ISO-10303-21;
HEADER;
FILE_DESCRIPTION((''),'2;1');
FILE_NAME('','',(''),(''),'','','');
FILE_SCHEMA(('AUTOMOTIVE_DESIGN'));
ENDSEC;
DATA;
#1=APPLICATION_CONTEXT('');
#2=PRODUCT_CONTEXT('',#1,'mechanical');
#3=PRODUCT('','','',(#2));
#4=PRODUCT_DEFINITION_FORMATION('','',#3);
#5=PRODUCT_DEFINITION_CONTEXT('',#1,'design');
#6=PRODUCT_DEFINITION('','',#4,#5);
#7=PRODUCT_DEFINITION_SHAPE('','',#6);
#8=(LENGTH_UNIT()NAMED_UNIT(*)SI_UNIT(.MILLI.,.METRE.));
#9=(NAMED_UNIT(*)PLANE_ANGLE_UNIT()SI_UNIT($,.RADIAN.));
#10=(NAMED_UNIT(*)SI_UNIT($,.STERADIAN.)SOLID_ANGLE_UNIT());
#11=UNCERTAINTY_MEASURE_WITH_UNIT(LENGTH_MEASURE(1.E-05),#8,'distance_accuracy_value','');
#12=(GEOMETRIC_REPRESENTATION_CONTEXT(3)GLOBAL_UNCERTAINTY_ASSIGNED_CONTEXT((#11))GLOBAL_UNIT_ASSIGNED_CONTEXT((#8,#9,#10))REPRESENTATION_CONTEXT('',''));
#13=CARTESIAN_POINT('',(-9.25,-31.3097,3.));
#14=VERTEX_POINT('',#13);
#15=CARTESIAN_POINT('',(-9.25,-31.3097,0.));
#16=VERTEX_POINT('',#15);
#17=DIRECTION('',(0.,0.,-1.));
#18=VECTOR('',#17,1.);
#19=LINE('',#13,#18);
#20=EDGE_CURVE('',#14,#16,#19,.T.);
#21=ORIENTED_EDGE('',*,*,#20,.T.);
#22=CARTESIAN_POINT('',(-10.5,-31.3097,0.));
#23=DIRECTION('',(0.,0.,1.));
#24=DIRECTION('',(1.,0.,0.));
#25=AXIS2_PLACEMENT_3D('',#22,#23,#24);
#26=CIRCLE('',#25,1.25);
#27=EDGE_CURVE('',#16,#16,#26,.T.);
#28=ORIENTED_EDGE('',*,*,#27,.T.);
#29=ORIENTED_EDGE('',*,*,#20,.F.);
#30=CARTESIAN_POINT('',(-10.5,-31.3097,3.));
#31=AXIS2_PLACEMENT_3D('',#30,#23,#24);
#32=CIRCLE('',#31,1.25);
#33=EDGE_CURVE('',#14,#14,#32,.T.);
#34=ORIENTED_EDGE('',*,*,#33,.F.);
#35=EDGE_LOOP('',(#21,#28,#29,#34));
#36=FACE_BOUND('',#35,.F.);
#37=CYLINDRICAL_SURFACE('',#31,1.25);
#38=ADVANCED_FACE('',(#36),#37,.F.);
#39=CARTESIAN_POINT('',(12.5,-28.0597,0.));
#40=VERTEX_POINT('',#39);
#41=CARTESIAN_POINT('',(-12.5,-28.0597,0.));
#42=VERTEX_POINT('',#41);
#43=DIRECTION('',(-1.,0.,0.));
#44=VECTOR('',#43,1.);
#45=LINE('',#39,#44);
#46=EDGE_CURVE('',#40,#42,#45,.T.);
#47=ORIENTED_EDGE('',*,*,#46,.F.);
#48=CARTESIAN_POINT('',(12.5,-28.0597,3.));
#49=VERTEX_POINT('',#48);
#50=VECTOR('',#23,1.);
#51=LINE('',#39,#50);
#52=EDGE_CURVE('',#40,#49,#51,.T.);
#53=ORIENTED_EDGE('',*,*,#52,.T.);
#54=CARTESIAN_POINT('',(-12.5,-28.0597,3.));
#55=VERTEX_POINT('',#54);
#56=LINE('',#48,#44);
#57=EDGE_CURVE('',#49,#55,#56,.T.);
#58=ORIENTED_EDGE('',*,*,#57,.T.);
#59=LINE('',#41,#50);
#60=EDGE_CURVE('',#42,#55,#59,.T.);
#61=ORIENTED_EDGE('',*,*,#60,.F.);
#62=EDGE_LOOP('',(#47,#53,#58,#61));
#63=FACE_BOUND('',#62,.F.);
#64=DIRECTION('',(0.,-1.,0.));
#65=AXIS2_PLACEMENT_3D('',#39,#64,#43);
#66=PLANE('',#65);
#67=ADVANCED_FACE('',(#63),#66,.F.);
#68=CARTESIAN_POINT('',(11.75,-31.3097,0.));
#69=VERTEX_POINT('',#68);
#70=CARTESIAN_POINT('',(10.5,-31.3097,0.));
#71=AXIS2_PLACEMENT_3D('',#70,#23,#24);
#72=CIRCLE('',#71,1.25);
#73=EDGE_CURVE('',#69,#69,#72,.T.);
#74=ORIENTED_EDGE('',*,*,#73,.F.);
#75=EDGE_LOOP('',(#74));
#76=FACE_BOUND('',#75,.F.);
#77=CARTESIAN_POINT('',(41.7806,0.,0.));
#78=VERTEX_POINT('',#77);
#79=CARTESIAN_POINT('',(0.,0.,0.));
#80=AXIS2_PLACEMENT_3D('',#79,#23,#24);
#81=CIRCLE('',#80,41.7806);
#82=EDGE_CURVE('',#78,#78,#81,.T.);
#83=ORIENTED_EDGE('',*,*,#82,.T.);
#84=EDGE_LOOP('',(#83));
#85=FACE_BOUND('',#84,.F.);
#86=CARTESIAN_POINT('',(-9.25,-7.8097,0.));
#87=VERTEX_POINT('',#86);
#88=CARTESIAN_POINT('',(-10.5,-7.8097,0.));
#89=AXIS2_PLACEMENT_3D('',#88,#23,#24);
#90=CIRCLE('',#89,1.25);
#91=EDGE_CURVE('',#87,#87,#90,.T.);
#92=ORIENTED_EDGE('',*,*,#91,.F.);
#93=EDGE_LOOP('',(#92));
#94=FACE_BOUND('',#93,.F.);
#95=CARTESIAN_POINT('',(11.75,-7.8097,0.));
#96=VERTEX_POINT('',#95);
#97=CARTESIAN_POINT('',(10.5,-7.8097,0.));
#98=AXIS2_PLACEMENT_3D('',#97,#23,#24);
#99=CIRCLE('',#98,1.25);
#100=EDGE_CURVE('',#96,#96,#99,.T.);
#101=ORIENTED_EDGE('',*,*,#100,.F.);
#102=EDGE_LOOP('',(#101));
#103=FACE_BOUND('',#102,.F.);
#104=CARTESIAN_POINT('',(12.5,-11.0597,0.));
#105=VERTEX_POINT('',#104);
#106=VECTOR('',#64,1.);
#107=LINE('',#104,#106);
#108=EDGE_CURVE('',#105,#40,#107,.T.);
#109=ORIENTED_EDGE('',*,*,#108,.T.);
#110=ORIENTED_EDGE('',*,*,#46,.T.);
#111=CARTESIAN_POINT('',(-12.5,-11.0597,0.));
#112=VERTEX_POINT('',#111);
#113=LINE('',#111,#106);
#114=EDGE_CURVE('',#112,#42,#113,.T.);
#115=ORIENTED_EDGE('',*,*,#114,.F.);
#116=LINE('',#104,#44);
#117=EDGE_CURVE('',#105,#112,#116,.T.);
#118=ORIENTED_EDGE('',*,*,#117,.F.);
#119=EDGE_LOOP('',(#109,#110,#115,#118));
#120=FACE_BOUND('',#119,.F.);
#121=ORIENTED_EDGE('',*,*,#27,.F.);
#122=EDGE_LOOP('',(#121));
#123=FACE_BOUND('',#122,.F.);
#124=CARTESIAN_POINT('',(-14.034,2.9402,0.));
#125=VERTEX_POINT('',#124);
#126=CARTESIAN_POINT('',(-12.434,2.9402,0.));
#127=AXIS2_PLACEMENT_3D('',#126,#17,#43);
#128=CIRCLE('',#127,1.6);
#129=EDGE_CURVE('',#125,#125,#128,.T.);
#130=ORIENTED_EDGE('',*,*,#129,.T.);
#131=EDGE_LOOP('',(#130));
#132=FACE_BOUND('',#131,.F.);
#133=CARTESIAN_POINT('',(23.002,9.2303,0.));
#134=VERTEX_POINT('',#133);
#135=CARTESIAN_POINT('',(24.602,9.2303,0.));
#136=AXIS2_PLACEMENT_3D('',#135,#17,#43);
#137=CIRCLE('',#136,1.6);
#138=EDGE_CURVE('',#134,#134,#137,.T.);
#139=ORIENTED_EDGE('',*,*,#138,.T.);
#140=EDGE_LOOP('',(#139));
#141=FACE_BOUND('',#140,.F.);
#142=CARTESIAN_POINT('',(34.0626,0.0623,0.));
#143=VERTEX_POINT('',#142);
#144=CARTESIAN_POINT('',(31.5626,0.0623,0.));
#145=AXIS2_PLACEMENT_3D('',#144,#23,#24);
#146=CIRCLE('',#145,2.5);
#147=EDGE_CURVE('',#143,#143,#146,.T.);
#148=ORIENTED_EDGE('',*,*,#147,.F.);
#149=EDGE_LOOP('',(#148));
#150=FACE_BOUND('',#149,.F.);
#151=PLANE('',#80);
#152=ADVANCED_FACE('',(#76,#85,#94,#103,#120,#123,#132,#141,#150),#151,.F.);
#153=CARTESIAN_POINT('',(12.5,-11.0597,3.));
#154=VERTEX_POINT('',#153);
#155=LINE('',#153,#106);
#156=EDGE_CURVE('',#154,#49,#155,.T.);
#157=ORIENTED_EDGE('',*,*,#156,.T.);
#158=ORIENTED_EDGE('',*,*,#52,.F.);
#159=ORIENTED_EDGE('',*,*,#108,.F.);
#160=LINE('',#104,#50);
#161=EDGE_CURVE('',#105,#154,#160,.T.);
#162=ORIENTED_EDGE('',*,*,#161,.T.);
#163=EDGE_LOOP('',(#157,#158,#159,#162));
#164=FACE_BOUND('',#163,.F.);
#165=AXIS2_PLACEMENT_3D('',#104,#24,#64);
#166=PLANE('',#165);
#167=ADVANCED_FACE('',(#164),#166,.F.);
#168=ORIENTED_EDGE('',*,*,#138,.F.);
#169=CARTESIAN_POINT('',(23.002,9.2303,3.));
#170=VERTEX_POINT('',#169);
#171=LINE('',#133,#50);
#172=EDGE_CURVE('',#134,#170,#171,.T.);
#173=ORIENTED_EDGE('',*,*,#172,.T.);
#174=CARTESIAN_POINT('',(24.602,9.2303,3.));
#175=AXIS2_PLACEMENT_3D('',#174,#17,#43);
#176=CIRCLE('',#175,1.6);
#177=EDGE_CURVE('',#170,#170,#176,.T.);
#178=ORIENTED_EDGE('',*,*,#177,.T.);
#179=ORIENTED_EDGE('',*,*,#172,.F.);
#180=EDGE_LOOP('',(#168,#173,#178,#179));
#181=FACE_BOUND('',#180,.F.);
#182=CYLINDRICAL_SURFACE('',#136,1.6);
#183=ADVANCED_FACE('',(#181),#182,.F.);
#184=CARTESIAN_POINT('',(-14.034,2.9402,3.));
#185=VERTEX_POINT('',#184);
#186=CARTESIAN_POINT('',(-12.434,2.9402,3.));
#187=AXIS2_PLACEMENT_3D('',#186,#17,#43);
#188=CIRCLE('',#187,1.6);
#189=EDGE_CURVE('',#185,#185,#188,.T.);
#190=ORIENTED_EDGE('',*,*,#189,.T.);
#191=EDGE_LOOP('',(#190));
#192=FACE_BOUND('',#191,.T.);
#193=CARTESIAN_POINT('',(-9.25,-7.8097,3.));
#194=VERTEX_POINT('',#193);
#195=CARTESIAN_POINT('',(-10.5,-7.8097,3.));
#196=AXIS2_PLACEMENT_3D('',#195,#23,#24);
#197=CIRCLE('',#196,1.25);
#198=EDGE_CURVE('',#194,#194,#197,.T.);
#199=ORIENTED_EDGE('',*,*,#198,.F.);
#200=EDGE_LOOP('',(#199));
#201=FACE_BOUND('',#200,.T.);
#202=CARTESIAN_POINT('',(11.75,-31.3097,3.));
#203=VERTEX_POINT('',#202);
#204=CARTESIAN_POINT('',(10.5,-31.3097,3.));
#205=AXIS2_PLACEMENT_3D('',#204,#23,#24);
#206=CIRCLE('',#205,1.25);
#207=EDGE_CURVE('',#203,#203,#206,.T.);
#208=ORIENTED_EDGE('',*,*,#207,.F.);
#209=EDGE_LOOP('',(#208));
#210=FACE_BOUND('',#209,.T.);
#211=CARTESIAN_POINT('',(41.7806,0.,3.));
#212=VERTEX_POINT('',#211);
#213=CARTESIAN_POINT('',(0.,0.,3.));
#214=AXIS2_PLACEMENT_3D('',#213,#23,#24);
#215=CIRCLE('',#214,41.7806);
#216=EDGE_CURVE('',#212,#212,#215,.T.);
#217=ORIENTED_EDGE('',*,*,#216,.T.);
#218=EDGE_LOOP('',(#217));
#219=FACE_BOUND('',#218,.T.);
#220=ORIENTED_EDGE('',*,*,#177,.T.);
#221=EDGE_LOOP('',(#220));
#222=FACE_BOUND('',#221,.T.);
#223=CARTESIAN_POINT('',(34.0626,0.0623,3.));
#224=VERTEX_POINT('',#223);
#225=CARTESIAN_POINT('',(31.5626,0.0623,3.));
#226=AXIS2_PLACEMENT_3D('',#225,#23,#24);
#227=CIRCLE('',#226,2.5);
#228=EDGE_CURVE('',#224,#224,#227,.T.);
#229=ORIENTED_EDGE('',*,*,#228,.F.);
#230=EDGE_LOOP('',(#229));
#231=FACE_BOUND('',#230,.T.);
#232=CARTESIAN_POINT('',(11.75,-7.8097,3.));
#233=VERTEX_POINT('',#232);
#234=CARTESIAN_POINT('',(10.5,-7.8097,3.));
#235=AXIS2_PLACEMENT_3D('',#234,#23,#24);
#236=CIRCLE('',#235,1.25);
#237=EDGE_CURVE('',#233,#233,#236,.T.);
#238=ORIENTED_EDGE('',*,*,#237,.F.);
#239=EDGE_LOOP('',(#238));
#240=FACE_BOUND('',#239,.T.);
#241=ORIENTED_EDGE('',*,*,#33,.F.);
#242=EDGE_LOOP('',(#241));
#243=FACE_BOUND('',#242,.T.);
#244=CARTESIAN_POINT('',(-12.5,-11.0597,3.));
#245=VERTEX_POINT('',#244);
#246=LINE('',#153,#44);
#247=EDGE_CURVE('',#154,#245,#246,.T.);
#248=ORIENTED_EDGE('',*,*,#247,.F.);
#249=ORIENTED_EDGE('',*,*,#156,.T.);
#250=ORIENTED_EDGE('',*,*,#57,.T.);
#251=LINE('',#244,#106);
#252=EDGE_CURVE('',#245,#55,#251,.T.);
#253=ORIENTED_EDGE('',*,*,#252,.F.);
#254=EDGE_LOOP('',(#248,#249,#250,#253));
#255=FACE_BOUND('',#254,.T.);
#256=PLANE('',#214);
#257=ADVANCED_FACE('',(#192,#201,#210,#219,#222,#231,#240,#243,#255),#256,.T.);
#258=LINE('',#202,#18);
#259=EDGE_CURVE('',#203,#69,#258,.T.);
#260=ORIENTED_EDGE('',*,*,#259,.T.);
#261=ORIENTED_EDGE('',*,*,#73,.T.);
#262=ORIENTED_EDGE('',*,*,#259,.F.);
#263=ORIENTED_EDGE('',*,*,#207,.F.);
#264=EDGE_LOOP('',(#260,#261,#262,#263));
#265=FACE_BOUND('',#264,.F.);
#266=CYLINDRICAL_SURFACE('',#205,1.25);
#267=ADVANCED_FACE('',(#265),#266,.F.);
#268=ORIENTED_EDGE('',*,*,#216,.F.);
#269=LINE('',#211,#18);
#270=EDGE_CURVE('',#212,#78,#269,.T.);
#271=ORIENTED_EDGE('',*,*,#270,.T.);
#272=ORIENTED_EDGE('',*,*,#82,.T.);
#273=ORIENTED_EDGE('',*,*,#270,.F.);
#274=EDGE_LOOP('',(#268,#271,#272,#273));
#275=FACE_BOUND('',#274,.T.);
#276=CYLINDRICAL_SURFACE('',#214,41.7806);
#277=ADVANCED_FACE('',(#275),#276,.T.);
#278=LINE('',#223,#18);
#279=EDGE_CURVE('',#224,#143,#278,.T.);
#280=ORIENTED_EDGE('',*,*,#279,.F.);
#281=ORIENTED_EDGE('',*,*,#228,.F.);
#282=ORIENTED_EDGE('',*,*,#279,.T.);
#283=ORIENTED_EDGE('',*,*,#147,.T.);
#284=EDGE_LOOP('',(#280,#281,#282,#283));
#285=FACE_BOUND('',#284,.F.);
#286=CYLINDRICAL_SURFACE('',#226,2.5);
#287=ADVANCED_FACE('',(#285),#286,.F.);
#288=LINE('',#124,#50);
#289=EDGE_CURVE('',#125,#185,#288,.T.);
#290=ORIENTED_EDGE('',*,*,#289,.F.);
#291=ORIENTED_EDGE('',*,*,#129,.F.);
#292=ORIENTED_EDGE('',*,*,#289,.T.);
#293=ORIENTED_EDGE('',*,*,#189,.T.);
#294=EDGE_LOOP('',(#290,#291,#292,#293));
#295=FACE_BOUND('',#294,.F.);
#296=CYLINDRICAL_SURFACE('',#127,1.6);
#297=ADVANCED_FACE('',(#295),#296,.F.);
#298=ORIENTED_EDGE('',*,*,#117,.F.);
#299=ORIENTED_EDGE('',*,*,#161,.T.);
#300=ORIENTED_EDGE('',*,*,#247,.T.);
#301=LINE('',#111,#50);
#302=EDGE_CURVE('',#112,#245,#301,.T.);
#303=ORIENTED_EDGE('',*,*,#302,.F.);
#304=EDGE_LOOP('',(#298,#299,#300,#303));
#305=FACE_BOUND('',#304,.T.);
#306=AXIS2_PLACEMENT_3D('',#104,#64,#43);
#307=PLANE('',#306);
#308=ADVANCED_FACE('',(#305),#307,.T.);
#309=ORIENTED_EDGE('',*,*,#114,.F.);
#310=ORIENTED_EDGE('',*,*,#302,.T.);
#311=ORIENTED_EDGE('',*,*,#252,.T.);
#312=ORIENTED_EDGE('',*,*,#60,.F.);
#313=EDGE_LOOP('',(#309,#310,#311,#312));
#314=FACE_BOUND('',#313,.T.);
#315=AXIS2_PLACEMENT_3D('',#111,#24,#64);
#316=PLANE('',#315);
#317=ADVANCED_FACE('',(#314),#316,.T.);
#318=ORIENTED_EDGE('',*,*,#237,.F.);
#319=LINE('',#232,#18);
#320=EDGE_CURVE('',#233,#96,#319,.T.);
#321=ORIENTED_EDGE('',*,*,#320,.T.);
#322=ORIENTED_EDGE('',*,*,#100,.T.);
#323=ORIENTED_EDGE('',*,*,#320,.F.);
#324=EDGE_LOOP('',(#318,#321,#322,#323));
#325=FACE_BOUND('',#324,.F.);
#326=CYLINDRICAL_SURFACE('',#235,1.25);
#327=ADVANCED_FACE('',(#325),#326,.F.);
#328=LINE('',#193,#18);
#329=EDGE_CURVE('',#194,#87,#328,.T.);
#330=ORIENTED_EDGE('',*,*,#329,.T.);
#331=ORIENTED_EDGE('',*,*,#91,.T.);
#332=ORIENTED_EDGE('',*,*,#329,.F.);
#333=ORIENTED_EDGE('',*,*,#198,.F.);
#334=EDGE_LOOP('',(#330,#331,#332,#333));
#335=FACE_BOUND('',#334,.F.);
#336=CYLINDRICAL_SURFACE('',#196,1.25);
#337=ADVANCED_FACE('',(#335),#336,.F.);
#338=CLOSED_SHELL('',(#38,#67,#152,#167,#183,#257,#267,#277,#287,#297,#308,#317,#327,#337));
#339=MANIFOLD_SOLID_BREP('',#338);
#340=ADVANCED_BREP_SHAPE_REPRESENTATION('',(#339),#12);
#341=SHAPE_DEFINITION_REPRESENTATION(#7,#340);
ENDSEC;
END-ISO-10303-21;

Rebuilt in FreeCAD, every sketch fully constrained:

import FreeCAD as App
import Part
import Sketcher
from FreeCAD import Vector


def add_polygon(sketch, points):
    """Adds a closed chain of lines whose ends are joined by coincident constraints."""
    first, n = sketch.GeometryCount, len(points)
    for a, b in zip(points, points[1:] + points[:1]):
        sketch.addGeometry(Part.LineSegment(App.Vector(*a, 0), App.Vector(*b, 0)), False)
    for i in range(n):
        sketch.addConstraint(Sketcher.Constraint("Coincident", first + i, 2, first + (i + 1) % n, 1))

doc = App.newDocument("Part")
body = doc.addObject("PartDesign::Body", "Body")

# Sketch on XY plane
sketch1 = body.newObject("Sketcher::SketchObject", "Sketch")
sketch1.AttachmentSupport = (doc.getObject("XY_Plane"), [""])
sketch1.MapMode = "FlatFace"
sketch1.addGeometry(Part.Circle(Vector(0, 0, 0), Vector(0, 0, 1), 42), False)  # 0
add_polygon(sketch1, [(-12, -11), (12, -11), (12, -28), (-12, -28)])  # lines 1-4
sketch1.addConstraint([
    Sketcher.Constraint("Horizontal", 1),
    Sketcher.Constraint("Vertical", 2),
    Sketcher.Constraint("Horizontal", 3),
    Sketcher.Constraint("Vertical", 4),
    Sketcher.Constraint("Coincident", 0, 3, -1, 1),
    Sketcher.Constraint("Diameter", 0, 83.0),
    Sketcher.Constraint("DistanceX", 1, 1, 1, 2, 25.0),
    Sketcher.Constraint("DistanceY", 2, 2, 2, 1, 17.0),
    Sketcher.Constraint("DistanceX", -1, 1, 1, 2, 12.5),
    Sketcher.Constraint("DistanceY", 1, 2, -1, 1, 11.0597),
])
pad1 = body.newObject("PartDesign::Pad", "Pad")
pad1.Profile = sketch1
pad1.Length = 3

# Sketch on XY plane
sketch2 = body.newObject("Sketcher::SketchObject", "Sketch001")
sketch2.AttachmentSupport = (doc.getObject("XY_Plane"), [""])
sketch2.MapMode = "FlatFace"
sketch2.AttachmentOffset = App.Placement(Vector(0, 0, 3), App.Rotation())
sketch2.addGeometry(Part.Circle(Vector(0.4, 15.8, 0), Vector(0, 0, 1), 1.5), False)
sketch2.addConstraint([
    Sketcher.Constraint("Diameter", 0, 3.0676),
    Sketcher.Constraint("DistanceX", -1, 1, 0, 3, 0.4132),
    Sketcher.Constraint("DistanceY", -1, 1, 0, 3, 15.7598),
])
pocket1 = body.newObject("PartDesign::Pocket", "Pocket")
pocket1.Profile = sketch2
pocket1.Length = 3

# Sketch on XY plane
sketch3 = body.newObject("Sketcher::SketchObject", "Sketch002")
sketch3.AttachmentSupport = (doc.getObject("XY_Plane"), [""])
sketch3.MapMode = "FlatFace"
sketch3.AttachmentOffset = App.Placement(Vector(0, 0, 3), App.Rotation())
sketch3.addGeometry(Part.Circle(Vector(31.6, 0.1, 0), Vector(0, 0, 1), 2.5), False)
sketch3.addConstraint([
    Sketcher.Constraint("Diameter", 0, 5.0),
    Sketcher.Constraint("DistanceX", -1, 1, 0, 3, 31.5626),
    Sketcher.Constraint("DistanceY", -1, 1, 0, 3, 0.0623),
])
pocket2 = body.newObject("PartDesign::Pocket", "Pocket001")
pocket2.Profile = sketch3
pocket2.Length = 3

# Sketch on XY plane
sketch4 = body.newObject("Sketcher::SketchObject", "Sketch003")
sketch4.AttachmentSupport = (doc.getObject("XY_Plane"), [""])
sketch4.MapMode = "FlatFace"
sketch4.AttachmentOffset = App.Placement(Vector(0, 0, 3), App.Rotation())
sketch4.addGeometry(Part.Circle(Vector(0.4, 15.8, 0), Vector(0, 0, 1), 1.5), False)
sketch4.addConstraint([
    Sketcher.Constraint("Diameter", 0, 3.0676),
    Sketcher.Constraint("DistanceX", -1, 1, 0, 3, 0.4132),
    Sketcher.Constraint("DistanceY", -1, 1, 0, 3, 15.7598),
])
pad2 = body.newObject("PartDesign::Pad", "Pad001")
pad2.Profile = sketch4
pad2.Length = 3
pad2.Reversed = True

# Sketch on XY plane
sketch5 = body.newObject("Sketcher::SketchObject", "Sketch004")
sketch5.AttachmentSupport = (doc.getObject("XY_Plane"), [""])
sketch5.MapMode = "FlatFace"
sketch5.AttachmentOffset = App.Placement(Vector(0, 0, 3), App.Rotation())
sketch5.addGeometry([
    Part.Circle(Vector(10.5, -7.8, 0), Vector(0, 0, 1), 1.2),
    Part.Circle(Vector(-10.5, -7.8, 0), Vector(0, 0, 1), 1.2),
    Part.Circle(Vector(-10.5, -31.3, 0), Vector(0, 0, 1), 1.2),
    Part.Circle(Vector(10.5, -31.3, 0), Vector(0, 0, 1), 1.2),
], False)
sketch5.addConstraint([
    Sketcher.Constraint("Equal", 0, 1),
    Sketcher.Constraint("Equal", 1, 2),
    Sketcher.Constraint("Equal", 2, 3),
    Sketcher.Constraint("Symmetric", 0, 3, 1, 3, -2),
    Sketcher.Constraint("Symmetric", 2, 3, 3, 3, -2),
    Sketcher.Constraint("Vertical", 1, 3, 2, 3),
    Sketcher.Constraint("Diameter", 0, 2.5),
    Sketcher.Constraint("DistanceX", 1, 3, 0, 3, 21.0),
    Sketcher.Constraint("DistanceY", 2, 3, 1, 3, 23.5),
    Sketcher.Constraint("DistanceY", 0, 3, -1, 1, 7.8097),
])
pocket3 = body.newObject("PartDesign::Pocket", "Pocket002")
pocket3.Profile = sketch5
pocket3.Length = 3

# Sketch on XY plane
sketch6 = body.newObject("Sketcher::SketchObject", "Sketch005")
sketch6.AttachmentSupport = (doc.getObject("XY_Plane"), [""])
sketch6.MapMode = "FlatFace"
sketch6.AttachmentOffset = App.Placement(Vector(0, 0, 3), App.Rotation())
sketch6.addGeometry([
    Part.Circle(Vector(0, 0, 0), Vector(0, 0, 1), 42),
    Part.Circle(Vector(0, 0, 0), Vector(0, 0, 1), 42),
], False)
sketch6.addConstraint([
    Sketcher.Constraint("Coincident", 0, 3, -1, 1),
    Sketcher.Constraint("Coincident", 1, 3, -1, 1),
    Sketcher.Constraint("Diameter", 1, 83.0),
    Sketcher.Constraint("Diameter", 0, 83.5612),
])
pad3 = body.newObject("PartDesign::Pad", "Pad002")
pad3.Profile = sketch6
pad3.Length = 3
pad3.Reversed = True

# Sketch on XY plane
sketch7 = body.newObject("Sketcher::SketchObject", "Sketch006")
sketch7.AttachmentSupport = (doc.getObject("XY_Plane"), [""])
sketch7.MapMode = "FlatFace"
sketch7.addGeometry([
    Part.Circle(Vector(24.6, 9.2, 0), Vector(0, 0, 1), 1.6),
    Part.Circle(Vector(-12.4, 2.9, 0), Vector(0, 0, 1), 1.6),
], False)
sketch7.addConstraint([
    Sketcher.Constraint("Equal", 0, 1),
    Sketcher.Constraint("Diameter", 0, 3.2),
    Sketcher.Constraint("DistanceY", 1, 3, 0, 3, 6.29),
    Sketcher.Constraint("DistanceX", -1, 1, 0, 3, 24.602),
    Sketcher.Constraint("DistanceX", 1, 3, -1, 1, 12.434),
    Sketcher.Constraint("DistanceY", -1, 1, 0, 3, 9.2303),
])
pocket4 = body.newObject("PartDesign::Pocket", "Pocket003")
pocket4.Profile = sketch7
pocket4.Length = 3
pocket4.Reversed = True

doc.recompute()
